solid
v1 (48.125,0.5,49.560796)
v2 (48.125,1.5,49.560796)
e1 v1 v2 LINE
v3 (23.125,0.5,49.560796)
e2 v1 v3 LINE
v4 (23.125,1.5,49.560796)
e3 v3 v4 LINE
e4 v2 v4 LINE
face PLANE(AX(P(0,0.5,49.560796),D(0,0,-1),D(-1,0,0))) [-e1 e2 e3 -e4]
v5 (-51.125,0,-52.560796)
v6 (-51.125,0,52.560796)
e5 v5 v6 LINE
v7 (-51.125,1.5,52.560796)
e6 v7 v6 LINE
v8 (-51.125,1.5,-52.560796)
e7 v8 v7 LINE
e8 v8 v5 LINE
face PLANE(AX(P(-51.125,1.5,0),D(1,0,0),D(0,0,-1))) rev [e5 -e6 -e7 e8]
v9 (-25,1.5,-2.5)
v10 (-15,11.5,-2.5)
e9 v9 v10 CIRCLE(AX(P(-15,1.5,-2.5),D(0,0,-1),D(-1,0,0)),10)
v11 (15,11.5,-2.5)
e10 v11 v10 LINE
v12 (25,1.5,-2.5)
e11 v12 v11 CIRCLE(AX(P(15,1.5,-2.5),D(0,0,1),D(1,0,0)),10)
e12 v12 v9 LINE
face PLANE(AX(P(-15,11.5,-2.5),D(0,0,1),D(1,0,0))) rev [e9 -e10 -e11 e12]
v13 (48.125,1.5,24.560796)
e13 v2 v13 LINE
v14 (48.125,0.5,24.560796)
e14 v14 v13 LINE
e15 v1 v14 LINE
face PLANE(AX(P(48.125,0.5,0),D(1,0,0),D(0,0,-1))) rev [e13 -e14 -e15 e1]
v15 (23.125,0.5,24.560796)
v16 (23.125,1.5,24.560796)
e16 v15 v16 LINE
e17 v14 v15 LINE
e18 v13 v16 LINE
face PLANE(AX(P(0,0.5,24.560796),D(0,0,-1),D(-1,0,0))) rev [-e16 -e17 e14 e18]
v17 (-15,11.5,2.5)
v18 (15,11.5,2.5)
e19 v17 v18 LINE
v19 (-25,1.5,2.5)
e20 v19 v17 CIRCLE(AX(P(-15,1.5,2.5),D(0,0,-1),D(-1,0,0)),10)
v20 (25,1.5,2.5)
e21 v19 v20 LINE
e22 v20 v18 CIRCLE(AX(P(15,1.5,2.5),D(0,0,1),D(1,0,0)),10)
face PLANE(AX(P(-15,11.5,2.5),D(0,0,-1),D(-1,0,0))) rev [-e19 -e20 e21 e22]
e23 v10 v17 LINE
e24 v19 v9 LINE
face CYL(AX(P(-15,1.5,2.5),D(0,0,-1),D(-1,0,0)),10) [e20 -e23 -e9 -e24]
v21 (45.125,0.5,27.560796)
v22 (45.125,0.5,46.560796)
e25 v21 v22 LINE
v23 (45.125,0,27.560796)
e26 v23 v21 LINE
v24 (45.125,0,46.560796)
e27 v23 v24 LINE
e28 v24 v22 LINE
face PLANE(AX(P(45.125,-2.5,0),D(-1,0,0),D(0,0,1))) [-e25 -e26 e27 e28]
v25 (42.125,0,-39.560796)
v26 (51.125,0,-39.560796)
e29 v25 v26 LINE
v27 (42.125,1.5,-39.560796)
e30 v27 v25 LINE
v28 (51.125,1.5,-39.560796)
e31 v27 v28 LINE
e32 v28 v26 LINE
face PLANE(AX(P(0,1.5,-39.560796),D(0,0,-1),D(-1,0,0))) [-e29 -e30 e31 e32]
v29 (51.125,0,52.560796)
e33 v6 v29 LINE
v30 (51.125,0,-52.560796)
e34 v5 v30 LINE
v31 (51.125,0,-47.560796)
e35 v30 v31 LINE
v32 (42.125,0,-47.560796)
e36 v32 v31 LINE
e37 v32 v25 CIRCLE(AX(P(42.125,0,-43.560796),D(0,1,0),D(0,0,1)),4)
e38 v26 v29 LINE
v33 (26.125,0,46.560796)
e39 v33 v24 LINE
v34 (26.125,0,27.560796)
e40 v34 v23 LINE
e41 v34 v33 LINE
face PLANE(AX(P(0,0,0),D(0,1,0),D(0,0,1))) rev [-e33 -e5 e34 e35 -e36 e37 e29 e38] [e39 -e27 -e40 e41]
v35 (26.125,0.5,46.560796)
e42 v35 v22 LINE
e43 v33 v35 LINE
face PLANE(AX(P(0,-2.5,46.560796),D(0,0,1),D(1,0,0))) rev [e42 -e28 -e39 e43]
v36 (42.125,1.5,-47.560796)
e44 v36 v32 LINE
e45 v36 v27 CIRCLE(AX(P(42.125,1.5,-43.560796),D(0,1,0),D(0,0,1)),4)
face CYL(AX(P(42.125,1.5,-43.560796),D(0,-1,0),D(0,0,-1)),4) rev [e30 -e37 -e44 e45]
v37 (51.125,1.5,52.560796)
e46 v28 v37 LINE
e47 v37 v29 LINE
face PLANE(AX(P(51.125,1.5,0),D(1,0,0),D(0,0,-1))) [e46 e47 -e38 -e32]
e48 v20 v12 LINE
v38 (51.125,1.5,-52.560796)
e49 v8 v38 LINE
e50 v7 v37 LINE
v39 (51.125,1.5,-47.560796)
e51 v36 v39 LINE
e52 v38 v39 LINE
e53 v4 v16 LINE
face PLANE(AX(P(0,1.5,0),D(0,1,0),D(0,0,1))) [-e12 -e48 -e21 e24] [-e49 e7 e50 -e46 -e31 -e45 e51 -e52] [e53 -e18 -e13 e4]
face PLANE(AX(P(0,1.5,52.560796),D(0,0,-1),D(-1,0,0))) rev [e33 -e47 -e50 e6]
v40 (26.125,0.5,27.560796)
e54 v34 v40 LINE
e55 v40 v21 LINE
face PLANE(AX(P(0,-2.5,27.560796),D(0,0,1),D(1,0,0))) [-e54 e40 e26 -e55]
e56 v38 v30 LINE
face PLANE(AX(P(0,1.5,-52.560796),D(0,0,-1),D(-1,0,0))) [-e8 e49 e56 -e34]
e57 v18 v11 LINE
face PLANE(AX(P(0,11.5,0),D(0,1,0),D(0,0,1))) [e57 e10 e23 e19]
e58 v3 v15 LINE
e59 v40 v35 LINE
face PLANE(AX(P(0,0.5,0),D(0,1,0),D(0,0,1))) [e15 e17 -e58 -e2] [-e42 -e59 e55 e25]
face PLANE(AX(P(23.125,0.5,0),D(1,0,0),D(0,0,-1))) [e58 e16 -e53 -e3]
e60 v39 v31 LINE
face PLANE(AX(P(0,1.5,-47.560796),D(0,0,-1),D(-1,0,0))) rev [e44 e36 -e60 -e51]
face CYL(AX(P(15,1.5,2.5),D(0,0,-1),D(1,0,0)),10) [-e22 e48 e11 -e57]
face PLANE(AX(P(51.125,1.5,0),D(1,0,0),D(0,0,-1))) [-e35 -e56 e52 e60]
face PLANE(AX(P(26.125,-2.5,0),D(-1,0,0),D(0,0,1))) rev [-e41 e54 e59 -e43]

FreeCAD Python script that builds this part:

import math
import FreeCAD as App
import Part
import Sketcher


def add_polygon(sketch, points):
    """Adds a closed chain of lines whose ends are joined by coincident constraints."""
    first, n = sketch.GeometryCount, len(points)
    for a, b in zip(points, points[1:] + points[:1]):
        sketch.addGeometry(Part.LineSegment(App.Vector(*a, 0), App.Vector(*b, 0)), False)
    for i in range(n):
        sketch.addConstraint(Sketcher.Constraint("Coincident", first + i, 2, first + (i + 1) % n, 1))

doc = App.newDocument("Part")
body = doc.addObject("PartDesign::Body", "Body")

# Sketch on XZ plane
sketch1 = body.newObject("Sketcher::SketchObject", "Sketch")
sketch1.AttachmentSupport = (doc.getObject("XZ_Plane"), [""])
sketch1.MapMode = "FlatFace"
sketch1.addGeometry(Part.ArcOfCircle(Part.Circle(App.Vector(42.125, -43.560796, 0), App.Vector(0, 0, 1), 4), math.radians(90), math.radians(270)), False)
sketch1.addGeometry(Part.LineSegment(App.Vector(42.125, -47.560796, 0), App.Vector(51.125, -47.560796, 0)), False)
sketch1.addGeometry(Part.LineSegment(App.Vector(51.125, -47.560796, 0), App.Vector(51.125, -52.560796, 0)), False)
sketch1.addGeometry(Part.LineSegment(App.Vector(51.125, -52.560796, 0), App.Vector(-51.125, -52.560796, 0)), False)
sketch1.addGeometry(Part.LineSegment(App.Vector(-51.125, -52.560796, 0), App.Vector(-51.125, 52.560796, 0)), False)
sketch1.addGeometry(Part.LineSegment(App.Vector(-51.125, 52.560796, 0), App.Vector(51.125, 52.560796, 0)), False)
sketch1.addGeometry(Part.LineSegment(App.Vector(51.125, 52.560796, 0), App.Vector(51.125, -39.560796, 0)), False)
sketch1.addGeometry(Part.LineSegment(App.Vector(51.125, -39.560796, 0), App.Vector(42.125, -39.560796, 0)), False)
sketch1.addConstraint(Sketcher.Constraint("Tangent", 0, 2, 1, 1))
sketch1.addConstraint(Sketcher.Constraint("Coincident", 1, 2, 2, 1))
sketch1.addConstraint(Sketcher.Constraint("Coincident", 2, 2, 3, 1))
sketch1.addConstraint(Sketcher.Constraint("Coincident", 3, 2, 4, 1))
sketch1.addConstraint(Sketcher.Constraint("Coincident", 4, 2, 5, 1))
sketch1.addConstraint(Sketcher.Constraint("Coincident", 5, 2, 6, 1))
sketch1.addConstraint(Sketcher.Constraint("Coincident", 6, 2, 7, 1))
sketch1.addConstraint(Sketcher.Constraint("Tangent", 7, 2, 0, 1))
sketch1.addConstraint(Sketcher.Constraint("Horizontal", 1))
sketch1.addConstraint(Sketcher.Constraint("Vertical", 2))
sketch1.addConstraint(Sketcher.Constraint("Horizontal", 3))
sketch1.addConstraint(Sketcher.Constraint("Vertical", 4))
sketch1.addConstraint(Sketcher.Constraint("Horizontal", 5))
sketch1.addConstraint(Sketcher.Constraint("Vertical", 6))
sketch1.addConstraint(Sketcher.Constraint("Horizontal", 7))
sketch1.addConstraint(Sketcher.Constraint("Symmetric", 2, 2, 4, 2, -1, 1))
sketch1.addConstraint(Sketcher.Constraint("Vertical", 2, 2, 5, 2))
sketch1.addConstraint(Sketcher.Constraint("Radius", 0, 4.0))
sketch1.addConstraint(Sketcher.Constraint("DistanceX", 1, 1, 1, 2, 9.0))
sketch1.addConstraint(Sketcher.Constraint("DistanceY", 2, 2, 2, 1, 5.0))
sketch1.addConstraint(Sketcher.Constraint("DistanceX", 3, 2, 3, 1, 102.25))
sketch1.addConstraint(Sketcher.Constraint("DistanceY", 4, 1, 4, 2, 105.121592))
pad1 = body.newObject("PartDesign::Pad", "Pad")
pad1.Profile = sketch1
pad1.Length = 1.5
pad1.Reversed = True

# Sketch on XZ plane
sketch2 = body.newObject("Sketcher::SketchObject", "Sketch001")
sketch2.AttachmentSupport = (doc.getObject("XZ_Plane"), [""])
sketch2.MapMode = "FlatFace"
sketch2.AttachmentOffset = App.Placement(App.Vector(0, 0, -1.5), App.Rotation())
add_polygon(sketch2, [(-15, -2.5), (-15, 2.5), (15, 2.5), (15, -2.5)])  # lines 0-3
sketch2.addConstraint(Sketcher.Constraint("Vertical", 0))
sketch2.addConstraint(Sketcher.Constraint("Horizontal", 1))
sketch2.addConstraint(Sketcher.Constraint("Vertical", 2))
sketch2.addConstraint(Sketcher.Constraint("Horizontal", 3))
sketch2.addConstraint(Sketcher.Constraint("Symmetric", 0, 2, 2, 2, -1, 1))
sketch2.addConstraint(Sketcher.Constraint("DistanceX", 1, 1, 1, 2, 30.0))
sketch2.addConstraint(Sketcher.Constraint("DistanceY", 0, 1, 0, 2, 5.0))
pad2 = body.newObject("PartDesign::Pad", "Pad001")
pad2.Profile = sketch2
pad2.Length = 10
pad2.Reversed = True

# Sketch on XZ plane
sketch3 = body.newObject("Sketcher::SketchObject", "Sketch002")
sketch3.AttachmentSupport = (doc.getObject("XZ_Plane"), [""])
sketch3.MapMode = "FlatFace"
sketch3.AttachmentOffset = App.Placement(App.Vector(0, 0, -1.5), App.Rotation())
add_polygon(sketch3, [(-25, -2.5), (-25, 2.5), (-15, 2.5), (-15, -2.5)])  # lines 0-3
sketch3.addGeometry(Part.LineSegment(App.Vector(-15, 2.5, 0), App.Vector(-15, -2.5, 0)), True)  # axis
sketch3.addConstraint(Sketcher.Constraint("Vertical", 0))
sketch3.addConstraint(Sketcher.Constraint("Horizontal", 1))
sketch3.addConstraint(Sketcher.Constraint("Vertical", 2))
sketch3.addConstraint(Sketcher.Constraint("Horizontal", 3))
sketch3.addConstraint(Sketcher.Constraint("Vertical", 4))
sketch3.addConstraint(Sketcher.Constraint("Coincident", 4, 1, 1, 2))
sketch3.addConstraint(Sketcher.Constraint("Horizontal", 3, 2, 4, 2))
sketch3.addConstraint(Sketcher.Constraint("DistanceX", 1, 1, 1, 2, 10.0))
sketch3.addConstraint(Sketcher.Constraint("DistanceY", 0, 1, 0, 2, 5.0))
sketch3.addConstraint(Sketcher.Constraint("DistanceX", 0, 2, -1, 1, 25.0))
sketch3.addConstraint(Sketcher.Constraint("DistanceY", -1, 1, 0, 2, 2.5))
revolution = body.newObject("PartDesign::Revolution", "Revolution")
revolution.Profile = sketch3
revolution.ReferenceAxis = (sketch3, ["Axis0"])
revolution.Angle = 180
doc.recompute()

mirrored = body.newObject("PartDesign::Mirrored", "Mirrored")
mirrored.Originals = [revolution]
mirrored.MirrorPlane = (doc.getObject("YZ_Plane"), [""])
body.Tip = mirrored

# Sketch on XZ plane
sketch4 = body.newObject("Sketcher::SketchObject", "Sketch003")
sketch4.AttachmentSupport = (doc.getObject("XZ_Plane"), [""])
sketch4.MapMode = "FlatFace"
sketch4.AttachmentOffset = App.Placement(App.Vector(0, 0, -1.5), App.Rotation())
add_polygon(sketch4, [(23.125, 24.560796), (23.125, 49.560796), (48.125, 49.560796), (48.125, 24.560796)])  # lines 0-3
sketch4.addConstraint(Sketcher.Constraint("Vertical", 0))
sketch4.addConstraint(Sketcher.Constraint("Horizontal", 1))
sketch4.addConstraint(Sketcher.Constraint("Vertical", 2))
sketch4.addConstraint(Sketcher.Constraint("Horizontal", 3))
sketch4.addConstraint(Sketcher.Constraint("Equal", 3, 0))
sketch4.addConstraint(Sketcher.Constraint("DistanceX", 1, 1, 1, 2, 25.0))
sketch4.addConstraint(Sketcher.Constraint("DistanceX", -1, 1, 0, 2, 23.125))
sketch4.addConstraint(Sketcher.Constraint("DistanceY", -1, 1, 0, 2, 49.560796))
pocket1 = body.newObject("PartDesign::Pocket", "Pocket")
pocket1.Profile = sketch4
pocket1.Length = 1
pocket1.Reversed = True

# Sketch on XZ plane
sketch5 = body.newObject("Sketcher::SketchObject", "Sketch004")
sketch5.AttachmentSupport = (doc.getObject("XZ_Plane"), [""])
sketch5.MapMode = "FlatFace"
sketch5.AttachmentOffset = App.Placement(App.Vector(0, 0, -0.5), App.Rotation())
add_polygon(sketch5, [(26.125, 27.560796), (26.125, 46.560796), (45.125, 46.560796), (45.125, 27.560796)])  # lines 0-3
sketch5.addConstraint(Sketcher.Constraint("Vertical", 0))
sketch5.addConstraint(Sketcher.Constraint("Horizontal", 1))
sketch5.addConstraint(Sketcher.Constraint("Vertical", 2))
sketch5.addConstraint(Sketcher.Constraint("Horizontal", 3))
sketch5.addConstraint(Sketcher.Constraint("Equal", 3, 0))
sketch5.addConstraint(Sketcher.Constraint("DistanceX", 1, 1, 1, 2, 19.0))
sketch5.addConstraint(Sketcher.Constraint("DistanceX", -1, 1, 0, 2, 26.125))
sketch5.addConstraint(Sketcher.Constraint("DistanceY", -1, 1, 0, 2, 46.560796))
pocket2 = body.newObject("PartDesign::Pocket", "Pocket001")
pocket2.Profile = sketch5
pocket2.Length = 3
pocket2.Reversed = True

doc.recompute()
